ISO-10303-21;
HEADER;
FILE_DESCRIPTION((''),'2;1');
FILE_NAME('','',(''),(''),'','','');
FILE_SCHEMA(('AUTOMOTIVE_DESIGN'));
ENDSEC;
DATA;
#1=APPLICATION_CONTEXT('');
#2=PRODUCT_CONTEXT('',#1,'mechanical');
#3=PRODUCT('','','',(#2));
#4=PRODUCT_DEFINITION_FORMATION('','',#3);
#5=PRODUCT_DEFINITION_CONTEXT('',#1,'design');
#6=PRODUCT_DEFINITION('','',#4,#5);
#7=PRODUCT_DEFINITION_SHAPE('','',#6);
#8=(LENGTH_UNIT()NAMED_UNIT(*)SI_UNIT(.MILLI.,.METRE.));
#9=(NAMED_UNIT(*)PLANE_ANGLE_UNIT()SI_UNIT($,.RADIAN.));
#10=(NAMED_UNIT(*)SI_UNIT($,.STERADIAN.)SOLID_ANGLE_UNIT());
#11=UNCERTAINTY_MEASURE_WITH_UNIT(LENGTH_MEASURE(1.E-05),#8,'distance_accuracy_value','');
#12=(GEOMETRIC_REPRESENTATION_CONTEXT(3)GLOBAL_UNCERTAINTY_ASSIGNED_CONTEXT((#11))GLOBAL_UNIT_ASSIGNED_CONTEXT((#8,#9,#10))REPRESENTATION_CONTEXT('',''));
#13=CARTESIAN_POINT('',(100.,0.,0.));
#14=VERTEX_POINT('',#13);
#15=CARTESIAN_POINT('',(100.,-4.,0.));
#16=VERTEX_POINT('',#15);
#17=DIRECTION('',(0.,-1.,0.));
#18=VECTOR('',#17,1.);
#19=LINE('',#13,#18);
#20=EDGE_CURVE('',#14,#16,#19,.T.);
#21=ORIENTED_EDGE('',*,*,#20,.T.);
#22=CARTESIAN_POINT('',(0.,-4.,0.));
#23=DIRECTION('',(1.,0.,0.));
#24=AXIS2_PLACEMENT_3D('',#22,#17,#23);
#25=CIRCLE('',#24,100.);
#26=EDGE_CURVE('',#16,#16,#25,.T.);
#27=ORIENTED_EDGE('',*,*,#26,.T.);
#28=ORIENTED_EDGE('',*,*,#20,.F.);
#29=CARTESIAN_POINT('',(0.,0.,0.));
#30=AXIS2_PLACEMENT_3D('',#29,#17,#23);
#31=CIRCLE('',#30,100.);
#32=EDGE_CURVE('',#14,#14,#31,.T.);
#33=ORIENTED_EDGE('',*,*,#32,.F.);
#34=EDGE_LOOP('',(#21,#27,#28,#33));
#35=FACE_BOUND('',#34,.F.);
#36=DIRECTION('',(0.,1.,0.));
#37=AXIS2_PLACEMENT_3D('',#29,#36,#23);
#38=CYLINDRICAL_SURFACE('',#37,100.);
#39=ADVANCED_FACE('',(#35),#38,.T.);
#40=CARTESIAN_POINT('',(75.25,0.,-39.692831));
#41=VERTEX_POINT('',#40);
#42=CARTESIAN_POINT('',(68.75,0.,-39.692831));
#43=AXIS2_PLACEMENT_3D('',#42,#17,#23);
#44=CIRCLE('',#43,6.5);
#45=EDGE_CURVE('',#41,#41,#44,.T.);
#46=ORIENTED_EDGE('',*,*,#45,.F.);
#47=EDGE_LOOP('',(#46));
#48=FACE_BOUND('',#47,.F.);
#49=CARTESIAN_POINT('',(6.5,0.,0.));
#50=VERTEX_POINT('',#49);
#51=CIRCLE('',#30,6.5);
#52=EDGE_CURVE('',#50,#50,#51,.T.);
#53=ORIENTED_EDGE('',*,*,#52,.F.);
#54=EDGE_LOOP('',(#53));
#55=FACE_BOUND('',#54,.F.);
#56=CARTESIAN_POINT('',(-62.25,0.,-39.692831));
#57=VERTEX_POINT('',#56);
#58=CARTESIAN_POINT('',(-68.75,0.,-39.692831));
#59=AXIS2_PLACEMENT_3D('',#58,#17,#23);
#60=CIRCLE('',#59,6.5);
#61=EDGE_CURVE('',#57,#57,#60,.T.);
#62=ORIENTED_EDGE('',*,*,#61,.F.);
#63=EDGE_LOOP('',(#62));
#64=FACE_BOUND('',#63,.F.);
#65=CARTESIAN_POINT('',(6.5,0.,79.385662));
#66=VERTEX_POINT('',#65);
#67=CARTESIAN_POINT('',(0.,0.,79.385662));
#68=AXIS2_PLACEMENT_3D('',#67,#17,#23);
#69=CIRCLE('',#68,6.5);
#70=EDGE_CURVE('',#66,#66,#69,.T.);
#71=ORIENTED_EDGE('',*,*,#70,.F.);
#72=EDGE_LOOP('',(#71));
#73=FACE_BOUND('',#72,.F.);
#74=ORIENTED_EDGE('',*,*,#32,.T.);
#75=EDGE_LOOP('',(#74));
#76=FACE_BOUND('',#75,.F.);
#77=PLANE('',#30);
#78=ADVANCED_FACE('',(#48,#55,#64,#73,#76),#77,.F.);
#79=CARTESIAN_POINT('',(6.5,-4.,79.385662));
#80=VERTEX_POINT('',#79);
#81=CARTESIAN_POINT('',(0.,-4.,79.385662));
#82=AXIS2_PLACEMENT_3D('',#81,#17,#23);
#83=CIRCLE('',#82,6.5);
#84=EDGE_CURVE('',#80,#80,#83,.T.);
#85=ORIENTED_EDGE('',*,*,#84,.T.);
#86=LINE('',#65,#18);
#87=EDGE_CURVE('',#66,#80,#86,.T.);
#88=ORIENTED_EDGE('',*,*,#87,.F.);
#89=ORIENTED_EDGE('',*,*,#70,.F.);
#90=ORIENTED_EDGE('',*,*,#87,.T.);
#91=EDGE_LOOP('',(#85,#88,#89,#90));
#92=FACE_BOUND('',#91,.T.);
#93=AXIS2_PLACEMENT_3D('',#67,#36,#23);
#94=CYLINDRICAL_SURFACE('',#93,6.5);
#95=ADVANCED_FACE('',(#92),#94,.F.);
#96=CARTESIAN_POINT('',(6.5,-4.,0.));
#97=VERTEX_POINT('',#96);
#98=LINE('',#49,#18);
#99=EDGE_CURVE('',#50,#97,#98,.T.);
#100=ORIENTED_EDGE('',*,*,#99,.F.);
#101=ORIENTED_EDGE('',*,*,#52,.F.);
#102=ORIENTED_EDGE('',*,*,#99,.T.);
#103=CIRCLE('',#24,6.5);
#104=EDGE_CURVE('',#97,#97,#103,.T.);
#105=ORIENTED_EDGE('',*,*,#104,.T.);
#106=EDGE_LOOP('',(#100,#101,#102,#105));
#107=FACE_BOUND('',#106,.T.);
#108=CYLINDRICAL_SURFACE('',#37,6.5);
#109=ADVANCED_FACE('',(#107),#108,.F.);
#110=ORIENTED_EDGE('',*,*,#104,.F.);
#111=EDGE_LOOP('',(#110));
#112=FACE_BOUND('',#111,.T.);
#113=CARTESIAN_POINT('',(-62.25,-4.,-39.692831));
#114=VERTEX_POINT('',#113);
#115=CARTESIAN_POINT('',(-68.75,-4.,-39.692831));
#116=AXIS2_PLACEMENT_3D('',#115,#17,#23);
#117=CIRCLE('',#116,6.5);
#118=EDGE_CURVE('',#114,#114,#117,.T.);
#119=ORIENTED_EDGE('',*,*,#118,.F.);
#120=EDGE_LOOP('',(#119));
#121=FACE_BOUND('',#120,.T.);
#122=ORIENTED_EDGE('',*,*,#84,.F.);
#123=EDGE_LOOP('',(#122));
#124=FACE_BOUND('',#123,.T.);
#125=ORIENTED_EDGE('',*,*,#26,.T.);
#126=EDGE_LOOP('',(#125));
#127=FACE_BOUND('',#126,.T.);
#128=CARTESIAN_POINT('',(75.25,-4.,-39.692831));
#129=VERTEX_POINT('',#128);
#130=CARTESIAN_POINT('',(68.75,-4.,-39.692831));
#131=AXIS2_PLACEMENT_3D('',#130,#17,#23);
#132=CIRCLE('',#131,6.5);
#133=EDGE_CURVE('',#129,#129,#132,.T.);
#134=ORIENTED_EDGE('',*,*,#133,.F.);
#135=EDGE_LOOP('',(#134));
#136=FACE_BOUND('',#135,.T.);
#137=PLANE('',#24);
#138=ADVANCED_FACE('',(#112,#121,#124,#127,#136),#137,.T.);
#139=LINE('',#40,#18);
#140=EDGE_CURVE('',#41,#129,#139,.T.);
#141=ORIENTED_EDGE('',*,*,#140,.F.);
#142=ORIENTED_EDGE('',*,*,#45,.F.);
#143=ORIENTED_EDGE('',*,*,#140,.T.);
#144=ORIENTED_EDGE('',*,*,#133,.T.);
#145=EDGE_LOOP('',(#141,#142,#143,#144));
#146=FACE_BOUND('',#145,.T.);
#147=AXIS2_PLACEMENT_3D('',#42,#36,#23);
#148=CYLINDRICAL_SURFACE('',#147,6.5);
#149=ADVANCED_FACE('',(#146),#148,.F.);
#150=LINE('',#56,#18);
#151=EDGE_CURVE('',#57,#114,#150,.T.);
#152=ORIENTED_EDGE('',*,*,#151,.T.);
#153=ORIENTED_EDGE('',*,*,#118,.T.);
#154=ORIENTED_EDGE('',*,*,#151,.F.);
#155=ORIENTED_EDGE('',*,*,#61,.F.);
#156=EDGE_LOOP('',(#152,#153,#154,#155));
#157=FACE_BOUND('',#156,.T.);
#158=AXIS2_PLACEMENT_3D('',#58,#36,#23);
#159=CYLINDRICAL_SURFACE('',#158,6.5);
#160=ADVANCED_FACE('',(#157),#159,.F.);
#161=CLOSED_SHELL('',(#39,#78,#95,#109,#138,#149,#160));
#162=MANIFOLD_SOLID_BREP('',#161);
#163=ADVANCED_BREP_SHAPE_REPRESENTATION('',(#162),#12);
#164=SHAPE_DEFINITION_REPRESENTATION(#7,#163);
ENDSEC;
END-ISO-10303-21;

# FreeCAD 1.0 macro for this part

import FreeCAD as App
import Part
import Sketcher

V = App.Vector
Q = App.Units.Quantity

doc = App.newDocument("Part")
body = doc.addObject("PartDesign::Body", "Body")

sketch1 = body.newObject("Sketcher::SketchObject", "Sketch")
sketch1.AttachmentSupport = (doc.getObject("XZ_Plane"), [""])
sketch1.MapMode = "FlatFace"
sketch1.addGeometry([
    Part.Circle(V(0, 0, 0), V(0, 0, 1), 100),
    Part.Circle(V(-69, -40, 0), V(0, 0, 1), 6),
    Part.Circle(V(69, -40, 0), V(0, 0, 1), 6),
    Part.Circle(V(0, 0, 0), V(0, 0, 1), 6),
    Part.Circle(V(0, 79, 0), V(0, 0, 1), 6),
], False)
sketch1.addConstraint([
    Sketcher.Constraint("Coincident", 0, 3, -1, 1),
    Sketcher.Constraint("Coincident", 3, 3, -1, 1),
    Sketcher.Constraint("Equal", 1, 2),
    Sketcher.Constraint("Equal", 2, 3),
    Sketcher.Constraint("Equal", 3, 4),
    Sketcher.Constraint("Symmetric", 1, 3, 2, 3, -2),
    Sketcher.Constraint("PointOnObject", 4, 3, -2),
    Sketcher.Constraint("Diameter", 0, Q("200 mm")),
    Sketcher.Constraint("Diameter", 1, Q("13 mm")),
    Sketcher.Constraint("DistanceX", 1, 3, 2, 3, Q("137.5 mm")),
    Sketcher.Constraint("DistanceY", 1, 3, -1, 1, Q("39.692831 mm")),
    Sketcher.Constraint("DistanceY", -1, 1, 4, 3, Q("79.385662 mm")),
])
pad1 = body.newObject("PartDesign::Pad", "Pad")
pad1.Profile = sketch1
pad1.Length = 4

doc.recompute()
